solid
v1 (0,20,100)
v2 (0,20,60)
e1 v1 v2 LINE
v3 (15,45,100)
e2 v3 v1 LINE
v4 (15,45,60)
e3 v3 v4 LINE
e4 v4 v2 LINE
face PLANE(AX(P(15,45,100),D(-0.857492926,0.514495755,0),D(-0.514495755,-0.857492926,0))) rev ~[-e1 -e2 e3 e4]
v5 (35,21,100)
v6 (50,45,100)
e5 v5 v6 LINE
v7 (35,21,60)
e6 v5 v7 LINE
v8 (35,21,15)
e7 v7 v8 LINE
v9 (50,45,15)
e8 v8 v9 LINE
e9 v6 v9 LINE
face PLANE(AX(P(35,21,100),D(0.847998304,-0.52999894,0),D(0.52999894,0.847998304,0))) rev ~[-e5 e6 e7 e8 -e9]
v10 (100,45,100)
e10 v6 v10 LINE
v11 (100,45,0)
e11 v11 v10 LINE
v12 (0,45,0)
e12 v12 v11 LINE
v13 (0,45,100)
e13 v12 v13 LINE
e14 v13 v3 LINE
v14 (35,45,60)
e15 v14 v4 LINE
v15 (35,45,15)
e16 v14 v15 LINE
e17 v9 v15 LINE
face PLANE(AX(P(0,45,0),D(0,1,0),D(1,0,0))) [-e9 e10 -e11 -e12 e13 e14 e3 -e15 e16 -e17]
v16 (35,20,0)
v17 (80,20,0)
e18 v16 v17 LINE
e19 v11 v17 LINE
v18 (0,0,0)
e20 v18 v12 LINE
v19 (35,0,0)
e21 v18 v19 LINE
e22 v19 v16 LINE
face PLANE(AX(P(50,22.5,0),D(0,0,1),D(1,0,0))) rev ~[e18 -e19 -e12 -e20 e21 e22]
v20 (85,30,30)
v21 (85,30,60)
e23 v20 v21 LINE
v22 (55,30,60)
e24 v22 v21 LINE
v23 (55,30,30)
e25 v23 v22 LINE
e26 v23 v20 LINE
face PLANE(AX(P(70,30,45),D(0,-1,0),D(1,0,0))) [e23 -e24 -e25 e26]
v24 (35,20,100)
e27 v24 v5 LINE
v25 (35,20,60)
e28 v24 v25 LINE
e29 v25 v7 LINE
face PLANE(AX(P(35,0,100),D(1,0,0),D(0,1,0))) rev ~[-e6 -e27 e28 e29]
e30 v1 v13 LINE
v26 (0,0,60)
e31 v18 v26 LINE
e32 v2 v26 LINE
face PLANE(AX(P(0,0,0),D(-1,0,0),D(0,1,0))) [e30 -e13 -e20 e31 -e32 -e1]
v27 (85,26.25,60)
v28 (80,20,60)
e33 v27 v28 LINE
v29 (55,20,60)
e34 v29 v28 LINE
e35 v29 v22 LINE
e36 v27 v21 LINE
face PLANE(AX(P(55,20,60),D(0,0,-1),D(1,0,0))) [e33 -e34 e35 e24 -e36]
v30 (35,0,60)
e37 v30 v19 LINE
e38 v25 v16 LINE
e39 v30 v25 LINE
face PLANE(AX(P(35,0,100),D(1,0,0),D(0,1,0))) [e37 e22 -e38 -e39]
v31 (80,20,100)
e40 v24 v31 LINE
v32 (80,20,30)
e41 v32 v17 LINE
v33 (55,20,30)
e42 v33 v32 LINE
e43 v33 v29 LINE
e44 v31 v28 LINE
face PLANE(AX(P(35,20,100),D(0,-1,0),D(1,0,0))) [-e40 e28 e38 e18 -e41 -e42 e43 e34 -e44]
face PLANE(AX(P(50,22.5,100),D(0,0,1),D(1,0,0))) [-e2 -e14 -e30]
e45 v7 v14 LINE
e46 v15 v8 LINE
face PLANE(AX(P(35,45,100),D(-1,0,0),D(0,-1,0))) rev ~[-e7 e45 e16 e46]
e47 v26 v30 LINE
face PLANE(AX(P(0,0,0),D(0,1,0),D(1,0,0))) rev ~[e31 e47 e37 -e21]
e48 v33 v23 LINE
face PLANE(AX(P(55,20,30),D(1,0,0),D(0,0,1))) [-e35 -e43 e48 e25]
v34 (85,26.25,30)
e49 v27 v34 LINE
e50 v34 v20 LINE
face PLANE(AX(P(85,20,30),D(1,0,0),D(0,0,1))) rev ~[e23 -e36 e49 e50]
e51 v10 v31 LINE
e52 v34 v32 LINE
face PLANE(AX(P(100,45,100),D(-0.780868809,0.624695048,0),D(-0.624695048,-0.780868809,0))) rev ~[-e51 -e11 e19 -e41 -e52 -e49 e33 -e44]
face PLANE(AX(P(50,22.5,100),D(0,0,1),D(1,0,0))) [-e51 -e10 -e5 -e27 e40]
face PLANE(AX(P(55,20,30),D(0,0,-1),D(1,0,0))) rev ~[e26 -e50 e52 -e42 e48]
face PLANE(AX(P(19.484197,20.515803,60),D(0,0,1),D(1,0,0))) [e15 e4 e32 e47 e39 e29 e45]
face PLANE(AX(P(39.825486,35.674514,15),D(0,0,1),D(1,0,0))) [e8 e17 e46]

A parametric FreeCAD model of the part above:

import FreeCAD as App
import Part
import Sketcher
from FreeCAD import Vector
Q = App.Units.Quantity

doc = App.newDocument("Part")
body = doc.addObject("PartDesign::Body", "Body")

sketch1 = doc.addObject("Sketcher::SketchObject", "Sketch")
body.addObject(sketch1)
sketch1.AttachmentSupport = (doc.XY_Plane, [""])
sketch1.MapMode = "FlatFace"
sketch1.addGeometry(Part.LineSegment(Vector(0, 45, 0), Vector(0, 0, 0)), False)
sketch1.addGeometry(Part.LineSegment(Vector(0, 0, 0), Vector(100, 0, 0)), False)
sketch1.addGeometry(Part.LineSegment(Vector(100, 0, 0), Vector(100, 45, 0)), False)
sketch1.addGeometry(Part.LineSegment(Vector(100, 45, 0), Vector(0, 45, 0)), False)
sketch1.addConstraint(Sketcher.Constraint("Coincident", 0, 2, 1, 1))
sketch1.addConstraint(Sketcher.Constraint("Coincident", 1, 2, 2, 1))
sketch1.addConstraint(Sketcher.Constraint("Coincident", 2, 2, 3, 1))
sketch1.addConstraint(Sketcher.Constraint("Coincident", 3, 2, 0, 1))
sketch1.addConstraint(Sketcher.Constraint("Vertical", 0))
sketch1.addConstraint(Sketcher.Constraint("Horizontal", 1))
sketch1.addConstraint(Sketcher.Constraint("Vertical", 2))
sketch1.addConstraint(Sketcher.Constraint("Horizontal", 3))
sketch1.addConstraint(Sketcher.Constraint("Coincident", 0, 2, -1, 1))
sketch1.addConstraint(Sketcher.Constraint("DistanceX", 1, 1, 1, 2, Q("100 mm")))
sketch1.addConstraint(Sketcher.Constraint("DistanceY", 0, 2, 0, 1, Q("45 mm")))
pad1 = doc.addObject("PartDesign::Pad", "Pad")
body.addObject(pad1)
pad1.Profile = sketch1
pad1.Length = 100

sketch2 = doc.addObject("Sketcher::SketchObject", "Sketch001")
body.addObject(sketch2)
sketch2.AttachmentSupport = (doc.XY_Plane, [""])
sketch2.MapMode = "FlatFace"
sketch2.AttachmentOffset = App.Placement(Vector(0, 0, 100), App.Rotation())
sketch2.addGeometry(Part.LineSegment(Vector(35, 45, 0), Vector(15, 45, 0)), False)
sketch2.addGeometry(Part.LineSegment(Vector(15, 45, 0), Vector(0, 20, 0)), False)
sketch2.addGeometry(Part.LineSegment(Vector(0, 20, 0), Vector(0, 0, 0)), False)
sketch2.addGeometry(Part.LineSegment(Vector(0, 0, 0), Vector(35, 0, 0)), False)
sketch2.addGeometry(Part.LineSegment(Vector(35, 0, 0), Vector(35, 45, 0)), False)
sketch2.addConstraint(Sketcher.Constraint("Coincident", 0, 2, 1, 1))
sketch2.addConstraint(Sketcher.Constraint("Coincident", 1, 2, 2, 1))
sketch2.addConstraint(Sketcher.Constraint("Coincident", 2, 2, 3, 1))
sketch2.addConstraint(Sketcher.Constraint("Coincident", 3, 2, 4, 1))
sketch2.addConstraint(Sketcher.Constraint("Coincident", 4, 2, 0, 1))
sketch2.addConstraint(Sketcher.Constraint("Horizontal", 0))
sketch2.addConstraint(Sketcher.Constraint("Vertical", 2))
sketch2.addConstraint(Sketcher.Constraint("Horizontal", 3))
sketch2.addConstraint(Sketcher.Constraint("Vertical", 4))
sketch2.addConstraint(Sketcher.Constraint("Coincident", 2, 2, -1, 1))
sketch2.addConstraint(Sketcher.Constraint("Equal", 0, 2))
sketch2.addConstraint(Sketcher.Constraint("DistanceX", 0, 2, 0, 1, Q("20 mm")))
sketch2.addConstraint(Sketcher.Constraint("DistanceX", 3, 1, 3, 2, Q("35 mm")))
sketch2.addConstraint(Sketcher.Constraint("DistanceY", 4, 1, 4, 2, Q("45 mm")))
pocket1 = doc.addObject("PartDesign::Pocket", "Pocket")
body.addObject(pocket1)
pocket1.Profile = sketch2
pocket1.Length = 40

sketch3 = doc.addObject("Sketcher::SketchObject", "Sketch002")
body.addObject(sketch3)
sketch3.AttachmentSupport = (doc.XY_Plane, [""])
sketch3.MapMode = "FlatFace"
sketch3.AttachmentOffset = App.Placement(Vector(0, 0, 100), App.Rotation())
sketch3.addGeometry(Part.LineSegment(Vector(35, 20, 0), Vector(35, 0, 0)), False)
sketch3.addGeometry(Part.LineSegment(Vector(35, 0, 0), Vector(80, 0, 0)), False)
sketch3.addGeometry(Part.LineSegment(Vector(80, 0, 0), Vector(80, 20, 0)), False)
sketch3.addGeometry(Part.LineSegment(Vector(80, 20, 0), Vector(35, 20, 0)), False)
sketch3.addConstraint(Sketcher.Constraint("Coincident", 0, 2, 1, 1))
sketch3.addConstraint(Sketcher.Constraint("Coincident", 1, 2, 2, 1))
sketch3.addConstraint(Sketcher.Constraint("Coincident", 2, 2, 3, 1))
sketch3.addConstraint(Sketcher.Constraint("Coincident", 3, 2, 0, 1))
sketch3.addConstraint(Sketcher.Constraint("Vertical", 0))
sketch3.addConstraint(Sketcher.Constraint("Horizontal", 1))
sketch3.addConstraint(Sketcher.Constraint("Vertical", 2))
sketch3.addConstraint(Sketcher.Constraint("Horizontal", 3))
sketch3.addConstraint(Sketcher.Constraint("PointOnObject", 0, 2, -1))
sketch3.addConstraint(Sketcher.Constraint("DistanceX", 1, 1, 1, 2, Q("45 mm")))
sketch3.addConstraint(Sketcher.Constraint("DistanceY", 0, 2, 0, 1, Q("20 mm")))
sketch3.addConstraint(Sketcher.Constraint("DistanceX", -1, 1, 0, 2, Q("35 mm")))
pocket2 = doc.addObject("PartDesign::Pocket", "Pocket001")
body.addObject(pocket2)
pocket2.Profile = sketch3
pocket2.Type = "ThroughAll"

sketch4 = doc.addObject("Sketcher::SketchObject", "Sketch003")
body.addObject(sketch4)
sketch4.AttachmentSupport = (doc.XY_Plane, [""])
sketch4.MapMode = "FlatFace"
sketch4.AttachmentOffset = App.Placement(Vector(0, 0, 100), App.Rotation())
sketch4.addGeometry(Part.LineSegment(Vector(100, 45, 0), Vector(80, 20, 0)), False)
sketch4.addGeometry(Part.LineSegment(Vector(80, 20, 0), Vector(80, 0, 0)), False)
sketch4.addGeometry(Part.LineSegment(Vector(80, 0, 0), Vector(100, 0, 0)), False)
sketch4.addGeometry(Part.LineSegment(Vector(100, 0, 0), Vector(100, 45, 0)), False)
sketch4.addConstraint(Sketcher.Constraint("Coincident", 0, 2, 1, 1))
sketch4.addConstraint(Sketcher.Constraint("Coincident", 1, 2, 2, 1))
sketch4.addConstraint(Sketcher.Constraint("Coincident", 2, 2, 3, 1))
sketch4.addConstraint(Sketcher.Constraint("Coincident", 3, 2, 0, 1))
sketch4.addConstraint(Sketcher.Constraint("Vertical", 1))
sketch4.addConstraint(Sketcher.Constraint("Horizontal", 2))
sketch4.addConstraint(Sketcher.Constraint("Vertical", 3))
sketch4.addConstraint(Sketcher.Constraint("PointOnObject", 1, 2, -1))
sketch4.addConstraint(Sketcher.Constraint("Equal", 2, 1))
sketch4.addConstraint(Sketcher.Constraint("DistanceX", 2, 1, 2, 2, Q("20 mm")))
sketch4.addConstraint(Sketcher.Constraint("DistanceY", 3, 1, 3, 2, Q("45 mm")))
sketch4.addConstraint(Sketcher.Constraint("DistanceX", -1, 1, 0, 2, Q("80 mm")))
pocket3 = doc.addObject("PartDesign::Pocket", "Pocket002")
body.addObject(pocket3)
pocket3.Profile = sketch4
pocket3.Type = "ThroughAll"

sketch5 = doc.addObject("Sketcher::SketchObject", "Sketch004")
body.addObject(sketch5)
sketch5.AttachmentSupport = (doc.XY_Plane, [""])
sketch5.MapMode = "FlatFace"
sketch5.AttachmentOffset = App.Placement(Vector(0, 0, 100), App.Rotation())
sketch5.addGeometry(Part.LineSegment(Vector(50, 45, 0), Vector(35, 45, 0)), False)
sketch5.addGeometry(Part.LineSegment(Vector(35, 45, 0), Vector(35, 21, 0)), False)
sketch5.addGeometry(Part.LineSegment(Vector(35, 21, 0), Vector(50, 45, 0)), False)
sketch5.addConstraint(Sketcher.Constraint("Coincident", 0, 2, 1, 1))
sketch5.addConstraint(Sketcher.Constraint("Coincident", 1, 2, 2, 1))
sketch5.addConstraint(Sketcher.Constraint("Coincident", 2, 2, 0, 1))
sketch5.addConstraint(Sketcher.Constraint("Horizontal", 0))
sketch5.addConstraint(Sketcher.Constraint("Vertical", 1))
sketch5.addConstraint(Sketcher.Constraint("DistanceX", 0, 2, 0, 1, Q("15 mm")))
sketch5.addConstraint(Sketcher.Constraint("DistanceY", 1, 2, 1, 1, Q("24 mm")))
sketch5.addConstraint(Sketcher.Constraint("DistanceX", -1, 1, 0, 2, Q("35 mm")))
sketch5.addConstraint(Sketcher.Constraint("DistanceY", -1, 1, 0, 2, Q("45 mm")))
pocket4 = doc.addObject("PartDesign::Pocket", "Pocket003")
body.addObject(pocket4)
pocket4.Profile = sketch5
pocket4.Length = 85

sketch6 = doc.addObject("Sketcher::SketchObject", "Sketch005")
body.addObject(sketch6)
sketch6.AttachmentSupport = (doc.XZ_Plane, [""])
sketch6.MapMode = "FlatFace"
sketch6.AttachmentOffset = App.Placement(Vector(0, 0, -20), App.Rotation())
sketch6.addGeometry(Part.LineSegment(Vector(55, 60, 0), Vector(55, 30, 0)), False)
sketch6.addGeometry(Part.LineSegment(Vector(55, 30, 0), Vector(85, 30, 0)), False)
sketch6.addGeometry(Part.LineSegment(Vector(85, 30, 0), Vector(85, 60, 0)), False)
sketch6.addGeometry(Part.LineSegment(Vector(85, 60, 0), Vector(55, 60, 0)), False)
sketch6.addConstraint(Sketcher.Constraint("Coincident", 0, 2, 1, 1))
sketch6.addConstraint(Sketcher.Constraint("Coincident", 1, 2, 2, 1))
sketch6.addConstraint(Sketcher.Constraint("Coincident", 2, 2, 3, 1))
sketch6.addConstraint(Sketcher.Constraint("Coincident", 3, 2, 0, 1))
sketch6.addConstraint(Sketcher.Constraint("Vertical", 0))
sketch6.addConstraint(Sketcher.Constraint("Horizontal", 1))
sketch6.addConstraint(Sketcher.Constraint("Vertical", 2))
sketch6.addConstraint(Sketcher.Constraint("Horizontal", 3))
sketch6.addConstraint(Sketcher.Constraint("Equal", 3, 0))
sketch6.addConstraint(Sketcher.Constraint("DistanceX", 1, 1, 1, 2, Q("30 mm")))
sketch6.addConstraint(Sketcher.Constraint("DistanceX", -1, 1, 0, 2, Q("55 mm")))
sketch6.addConstraint(Sketcher.Constraint("DistanceY", -1, 1, 0, 2, Q("30 mm")))
pocket5 = doc.addObject("PartDesign::Pocket", "Pocket004")
body.addObject(pocket5)
pocket5.Profile = sketch6
pocket5.Length = 10

doc.recompute()
